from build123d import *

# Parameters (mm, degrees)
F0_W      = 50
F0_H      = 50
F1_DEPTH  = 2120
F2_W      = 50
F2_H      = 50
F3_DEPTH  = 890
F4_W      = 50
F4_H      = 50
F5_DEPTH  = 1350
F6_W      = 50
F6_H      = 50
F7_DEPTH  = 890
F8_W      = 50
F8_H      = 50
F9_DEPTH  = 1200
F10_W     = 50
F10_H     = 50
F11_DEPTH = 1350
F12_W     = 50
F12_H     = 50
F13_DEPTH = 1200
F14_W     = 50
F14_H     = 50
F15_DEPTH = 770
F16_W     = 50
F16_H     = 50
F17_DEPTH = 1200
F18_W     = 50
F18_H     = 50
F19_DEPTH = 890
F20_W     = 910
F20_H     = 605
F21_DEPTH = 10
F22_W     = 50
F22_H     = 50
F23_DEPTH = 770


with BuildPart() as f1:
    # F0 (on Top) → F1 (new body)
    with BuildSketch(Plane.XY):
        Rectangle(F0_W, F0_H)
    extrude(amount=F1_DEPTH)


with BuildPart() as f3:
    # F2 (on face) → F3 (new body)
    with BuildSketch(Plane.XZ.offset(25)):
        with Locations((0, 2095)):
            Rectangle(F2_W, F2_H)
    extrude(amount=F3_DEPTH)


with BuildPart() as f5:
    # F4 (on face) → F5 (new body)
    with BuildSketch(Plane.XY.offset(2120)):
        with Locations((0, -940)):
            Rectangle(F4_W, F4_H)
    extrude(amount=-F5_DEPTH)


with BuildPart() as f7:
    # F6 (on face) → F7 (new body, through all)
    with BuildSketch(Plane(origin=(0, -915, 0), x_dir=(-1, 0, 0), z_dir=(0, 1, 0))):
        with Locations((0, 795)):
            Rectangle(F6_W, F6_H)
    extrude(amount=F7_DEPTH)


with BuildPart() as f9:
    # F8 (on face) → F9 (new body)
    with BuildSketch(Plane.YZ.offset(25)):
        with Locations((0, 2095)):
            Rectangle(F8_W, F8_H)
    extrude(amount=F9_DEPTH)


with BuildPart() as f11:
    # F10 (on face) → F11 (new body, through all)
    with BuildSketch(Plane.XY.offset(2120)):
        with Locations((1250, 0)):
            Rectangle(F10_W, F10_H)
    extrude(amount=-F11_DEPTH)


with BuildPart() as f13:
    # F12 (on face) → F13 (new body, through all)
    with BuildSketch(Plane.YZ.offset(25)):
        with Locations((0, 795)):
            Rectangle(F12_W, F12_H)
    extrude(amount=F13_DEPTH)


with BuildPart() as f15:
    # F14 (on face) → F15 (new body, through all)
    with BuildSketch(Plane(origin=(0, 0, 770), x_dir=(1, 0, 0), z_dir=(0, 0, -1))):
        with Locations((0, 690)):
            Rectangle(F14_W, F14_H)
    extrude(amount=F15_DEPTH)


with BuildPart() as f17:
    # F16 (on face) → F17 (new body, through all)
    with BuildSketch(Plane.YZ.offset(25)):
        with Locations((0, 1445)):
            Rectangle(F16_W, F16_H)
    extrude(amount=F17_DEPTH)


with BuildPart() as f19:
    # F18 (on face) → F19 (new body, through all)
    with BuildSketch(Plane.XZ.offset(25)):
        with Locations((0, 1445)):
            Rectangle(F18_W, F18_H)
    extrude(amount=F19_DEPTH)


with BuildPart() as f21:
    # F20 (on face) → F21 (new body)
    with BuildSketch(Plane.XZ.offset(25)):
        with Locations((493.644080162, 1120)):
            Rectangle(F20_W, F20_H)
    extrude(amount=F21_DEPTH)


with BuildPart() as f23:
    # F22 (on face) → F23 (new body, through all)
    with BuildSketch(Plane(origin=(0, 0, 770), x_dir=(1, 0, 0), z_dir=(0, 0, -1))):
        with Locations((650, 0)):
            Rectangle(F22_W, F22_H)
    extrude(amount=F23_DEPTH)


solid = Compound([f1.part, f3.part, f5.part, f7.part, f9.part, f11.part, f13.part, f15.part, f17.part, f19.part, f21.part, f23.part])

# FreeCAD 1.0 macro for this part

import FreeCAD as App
import Part
import Sketcher
Q = App.Units.Quantity


def add_polygon(sketch, points):
    """Adds a closed chain of lines whose ends are joined by coincident constraints."""
    first, n = sketch.GeometryCount, len(points)
    for a, b in zip(points, points[1:] + points[:1]):
        sketch.addGeometry(Part.LineSegment(App.Vector(*a, 0), App.Vector(*b, 0)), False)
    for i in range(n):
        sketch.addConstraint(Sketcher.Constraint("Coincident", first + i, 2, first + (i + 1) % n, 1))

doc = App.newDocument("Part")
body = doc.addObject("PartDesign::Body", "Body")

# Sketch on XY plane
sketch1 = body.newObject("Sketcher::SketchObject", "Sketch")
sketch1.AttachmentSupport = (doc.getObject("XY_Plane"), [""])
sketch1.MapMode = "FlatFace"
add_polygon(sketch1, [(-25, 25), (-25, -25), (25, -25), (25, 25)])  # lines 0-3
sketch1.addConstraint([
    Sketcher.Constraint("Vertical", 0),
    Sketcher.Constraint("Horizontal", 1),
    Sketcher.Constraint("Vertical", 2),
    Sketcher.Constraint("Horizontal", 3),
    Sketcher.Constraint("Symmetric", 0, 2, 2, 2, -1, 1),
    Sketcher.Constraint("Equal", 3, 0),
    Sketcher.Constraint("DistanceX", 1, 1, 1, 2, Q("50 mm")),
])
pad1 = body.newObject("PartDesign::Pad", "Pad")
pad1.Profile = sketch1
pad1.Length = 2120
body2 = doc.addObject("PartDesign::Body", "Body001")

# Sketch on XZ plane
sketch2 = body2.newObject("Sketcher::SketchObject", "Sketch001")
sketch2.AttachmentSupport = (doc.getObject("XZ_Plane001"), [""])
sketch2.MapMode = "FlatFace"
sketch2.AttachmentOffset = App.Placement(App.Vector(0, 0, 25), App.Rotation())
add_polygon(sketch2, [(-25, 2120), (-25, 2070), (25, 2070), (25, 2120)])  # lines 0-3
sketch2.addConstraint([
    Sketcher.Constraint("Vertical", 0),
    Sketcher.Constraint("Horizontal", 1),
    Sketcher.Constraint("Vertical", 2),
    Sketcher.Constraint("Horizontal", 3),
    Sketcher.Constraint("Equal", 3, 0),
    Sketcher.Constraint("DistanceX", 1, 1, 1, 2, Q("50 mm")),
    Sketcher.Constraint("DistanceX", 0, 2, -1, 1, Q("25 mm")),
    Sketcher.Constraint("DistanceY", -1, 1, 0, 2, Q("2070 mm")),
])
pad2 = body2.newObject("PartDesign::Pad", "Pad001")
pad2.Profile = sketch2
pad2.Length = 890
body3 = doc.addObject("PartDesign::Body", "Body002")

# Sketch on XY plane
sketch3 = body3.newObject("Sketcher::SketchObject", "Sketch002")
sketch3.AttachmentSupport = (doc.getObject("XY_Plane002"), [""])
sketch3.MapMode = "FlatFace"
sketch3.AttachmentOffset = App.Placement(App.Vector(0, 0, 2120), App.Rotation())
add_polygon(sketch3, [(-25, -915), (-25, -965), (25, -965), (25, -915)])  # lines 0-3
sketch3.addConstraint([
    Sketcher.Constraint("Vertical", 0),
    Sketcher.Constraint("Horizontal", 1),
    Sketcher.Constraint("Vertical", 2),
    Sketcher.Constraint("Horizontal", 3),
    Sketcher.Constraint("Equal", 3, 0),
    Sketcher.Constraint("DistanceX", 1, 1, 1, 2, Q("50 mm")),
    Sketcher.Constraint("DistanceX", 0, 2, -1, 1, Q("25 mm")),
    Sketcher.Constraint("DistanceY", 0, 2, -1, 1, Q("965 mm")),
])
pad3 = body3.newObject("PartDesign::Pad", "Pad002")
pad3.Profile = sketch3
pad3.Length = 1350
pad3.Reversed = True
body4 = doc.addObject("PartDesign::Body", "Body003")

# Sketch on XZ plane
sketch4 = body4.newObject("Sketcher::SketchObject", "Sketch003")
sketch4.AttachmentSupport = (doc.getObject("XZ_Plane003"), [""])
sketch4.MapMode = "FlatFace"
sketch4.AttachmentOffset = App.Placement(App.Vector(0, 0, 915), App.Rotation())
add_polygon(sketch4, [(25, 820), (25, 770), (-25, 770), (-25, 820)])  # lines 0-3
sketch4.addConstraint([
    Sketcher.Constraint("Vertical", 0),
    Sketcher.Constraint("Horizontal", 1),
    Sketcher.Constraint("Vertical", 2),
    Sketcher.Constraint("Horizontal", 3),
    Sketcher.Constraint("Equal", 3, 0),
    Sketcher.Constraint("DistanceX", 1, 2, 1, 1, Q("50 mm")),
    Sketcher.Constraint("DistanceX", -1, 1, 0, 2, Q("25 mm")),
    Sketcher.Constraint("DistanceY", -1, 1, 0, 2, Q("770 mm")),
])
pad4 = body4.newObject("PartDesign::Pad", "Pad003")
pad4.Profile = sketch4
pad4.Length = 890
pad4.Reversed = True
body5 = doc.addObject("PartDesign::Body", "Body004")

# Sketch on YZ plane
sketch5 = body5.newObject("Sketcher::SketchObject", "Sketch004")
sketch5.AttachmentSupport = (doc.getObject("YZ_Plane004"), [""])
sketch5.MapMode = "FlatFace"
sketch5.AttachmentOffset = App.Placement(App.Vector(0, 0, 25), App.Rotation())
add_polygon(sketch5, [(-25, 2120), (-25, 2070), (25, 2070), (25, 2120)])  # lines 0-3
sketch5.addConstraint([
    Sketcher.Constraint("Vertical", 0),
    Sketcher.Constraint("Horizontal", 1),
    Sketcher.Constraint("Vertical", 2),
    Sketcher.Constraint("Horizontal", 3),
    Sketcher.Constraint("Equal", 3, 0),
    Sketcher.Constraint("DistanceX", 1, 1, 1, 2, Q("50 mm")),
    Sketcher.Constraint("DistanceX", 0, 2, -1, 1, Q("25 mm")),
    Sketcher.Constraint("DistanceY", -1, 1, 0, 2, Q("2070 mm")),
])
pad5 = body5.newObject("PartDesign::Pad", "Pad004")
pad5.Profile = sketch5
pad5.Length = 1200
body6 = doc.addObject("PartDesign::Body", "Body005")

# Sketch on XY plane
sketch6 = body6.newObject("Sketcher::SketchObject", "Sketch005")
sketch6.AttachmentSupport = (doc.getObject("XY_Plane005"), [""])
sketch6.MapMode = "FlatFace"
sketch6.AttachmentOffset = App.Placement(App.Vector(0, 0, 2120), App.Rotation())
add_polygon(sketch6, [(1225, 25), (1225, -25), (1275, -25), (1275, 25)])  # lines 0-3
sketch6.addConstraint([
    Sketcher.Constraint("Vertical", 0),
    Sketcher.Constraint("Horizontal", 1),
    Sketcher.Constraint("Vertical", 2),
    Sketcher.Constraint("Horizontal", 3),
    Sketcher.Constraint("Equal", 3, 0),
    Sketcher.Constraint("DistanceX", 1, 1, 1, 2, Q("50 mm")),
    Sketcher.Constraint("DistanceX", -1, 1, 0, 2, Q("1225 mm")),
    Sketcher.Constraint("DistanceY", 0, 2, -1, 1, Q("25 mm")),
])
pad6 = body6.newObject("PartDesign::Pad", "Pad005")
pad6.Profile = sketch6
pad6.Length = 1350
pad6.Reversed = True
body7 = doc.addObject("PartDesign::Body", "Body006")

# Sketch on YZ plane
sketch7 = body7.newObject("Sketcher::SketchObject", "Sketch006")
sketch7.AttachmentSupport = (doc.getObject("YZ_Plane006"), [""])
sketch7.MapMode = "FlatFace"
sketch7.AttachmentOffset = App.Placement(App.Vector(0, 0, 25), App.Rotation())
add_polygon(sketch7, [(-25, 820), (-25, 770), (25, 770), (25, 820)])  # lines 0-3
sketch7.addConstraint([
    Sketcher.Constraint("Vertical", 0),
    Sketcher.Constraint("Horizontal", 1),
    Sketcher.Constraint("Vertical", 2),
    Sketcher.Constraint("Horizontal", 3),
    Sketcher.Constraint("Equal", 3, 0),
    Sketcher.Constraint("DistanceX", 1, 1, 1, 2, Q("50 mm")),
    Sketcher.Constraint("DistanceX", 0, 2, -1, 1, Q("25 mm")),
    Sketcher.Constraint("DistanceY", -1, 1, 0, 2, Q("770 mm")),
])
pad7 = body7.newObject("PartDesign::Pad", "Pad006")
pad7.Profile = sketch7
pad7.Length = 1200
body8 = doc.addObject("PartDesign::Body", "Body007")

# Sketch on XY plane
sketch8 = body8.newObject("Sketcher::SketchObject", "Sketch007")
sketch8.AttachmentSupport = (doc.getObject("XY_Plane007"), [""])
sketch8.MapMode = "FlatFace"
sketch8.AttachmentOffset = App.Placement(App.Vector(0, 0, 770), App.Rotation())
add_polygon(sketch8, [(-25, -715), (-25, -665), (25, -665), (25, -715)])  # lines 0-3
sketch8.addConstraint([
    Sketcher.Constraint("Vertical", 0),
    Sketcher.Constraint("Horizontal", 1),
    Sketcher.Constraint("Vertical", 2),
    Sketcher.Constraint("Horizontal", 3),
    Sketcher.Constraint("Equal", 3, 0),
    Sketcher.Constraint("DistanceX", 1, 1, 1, 2, Q("50 mm")),
    Sketcher.Constraint("DistanceX", 0, 2, -1, 1, Q("25 mm")),
    Sketcher.Constraint("DistanceY", 0, 2, -1, 1, Q("665 mm")),
])
pad8 = body8.newObject("PartDesign::Pad", "Pad007")
pad8.Profile = sketch8
pad8.Length = 770
pad8.Reversed = True
body9 = doc.addObject("PartDesign::Body", "Body008")

# Sketch on YZ plane
sketch9 = body9.newObject("Sketcher::SketchObject", "Sketch008")
sketch9.AttachmentSupport = (doc.getObject("YZ_Plane008"), [""])
sketch9.MapMode = "FlatFace"
sketch9.AttachmentOffset = App.Placement(App.Vector(0, 0, 25), App.Rotation())
add_polygon(sketch9, [(-25, 1470), (-25, 1420), (25, 1420), (25, 1470)])  # lines 0-3
sketch9.addConstraint([
    Sketcher.Constraint("Vertical", 0),
    Sketcher.Constraint("Horizontal", 1),
    Sketcher.Constraint("Vertical", 2),
    Sketcher.Constraint("Horizontal", 3),
    Sketcher.Constraint("Equal", 3, 0),
    Sketcher.Constraint("DistanceX", 1, 1, 1, 2, Q("50 mm")),
    Sketcher.Constraint("DistanceX", 0, 2, -1, 1, Q("25 mm")),
    Sketcher.Constraint("DistanceY", -1, 1, 0, 2, Q("1420 mm")),
])
pad9 = body9.newObject("PartDesign::Pad", "Pad008")
pad9.Profile = sketch9
pad9.Length = 1200
body10 = doc.addObject("PartDesign::Body", "Body009")

# Sketch on XZ plane
sketch10 = body10.newObject("Sketcher::SketchObject", "Sketch009")
sketch10.AttachmentSupport = (doc.getObject("XZ_Plane009"), [""])
sketch10.MapMode = "FlatFace"
sketch10.AttachmentOffset = App.Placement(App.Vector(0, 0, 25), App.Rotation())
add_polygon(sketch10, [(-25, 1470), (-25, 1420), (25, 1420), (25, 1470)])  # lines 0-3
sketch10.addConstraint([
    Sketcher.Constraint("Vertical", 0),
    Sketcher.Constraint("Horizontal", 1),
    Sketcher.Constraint("Vertical", 2),
    Sketcher.Constraint("Horizontal", 3),
    Sketcher.Constraint("Equal", 3, 0),
    Sketcher.Constraint("DistanceX", 1, 1, 1, 2, Q("50 mm")),
    Sketcher.Constraint("DistanceX", 0, 2, -1, 1, Q("25 mm")),
    Sketcher.Constraint("DistanceY", -1, 1, 0, 2, Q("1420 mm")),
])
pad10 = body10.newObject("PartDesign::Pad", "Pad009")
pad10.Profile = sketch10
pad10.Length = 890
body11 = doc.addObject("PartDesign::Body", "Body010")

# Sketch on XZ plane
sketch11 = body11.newObject("Sketcher::SketchObject", "Sketch010")
sketch11.AttachmentSupport = (doc.getObject("XZ_Plane010"), [""])
sketch11.MapMode = "FlatFace"
sketch11.AttachmentOffset = App.Placement(App.Vector(0, 0, 25), App.Rotation())
add_polygon(sketch11, [(39, 1422), (39, 818), (949, 818), (949, 1422)])  # lines 0-3
sketch11.addConstraint([
    Sketcher.Constraint("Vertical", 0),
    Sketcher.Constraint("Horizontal", 1),
    Sketcher.Constraint("Vertical", 2),
    Sketcher.Constraint("Horizontal", 3),
    Sketcher.Constraint("DistanceX", 1, 1, 1, 2, Q("910 mm")),
    Sketcher.Constraint("DistanceY", 0, 2, 0, 1, Q("605 mm")),
    Sketcher.Constraint("DistanceY", -1, 1, 0, 2, Q("817.5 mm")),
    Sketcher.Constraint("DistanceX", -1, 1, 0, 2, Q("38.64408 mm")),
])
pad11 = body11.newObject("PartDesign::Pad", "Pad010")
pad11.Profile = sketch11
pad11.Length = 10
body12 = doc.addObject("PartDesign::Body", "Body011")

# Sketch on XY plane
sketch12 = body12.newObject("Sketcher::SketchObject", "Sketch011")
sketch12.AttachmentSupport = (doc.getObject("XY_Plane011"), [""])
sketch12.MapMode = "FlatFace"
sketch12.AttachmentOffset = App.Placement(App.Vector(0, 0, 770), App.Rotation())
add_polygon(sketch12, [(625, -25), (625, 25), (675, 25), (675, -25)])  # lines 0-3
sketch12.addConstraint([
    Sketcher.Constraint("Vertical", 0),
    Sketcher.Constraint("Horizontal", 1),
    Sketcher.Constraint("Vertical", 2),
    Sketcher.Constraint("Horizontal", 3),
    Sketcher.Constraint("Equal", 3, 0),
    Sketcher.Constraint("DistanceX", 1, 1, 1, 2, Q("50 mm")),
    Sketcher.Constraint("DistanceX", -1, 1, 0, 2, Q("625 mm")),
    Sketcher.Constraint("DistanceY", -1, 1, 0, 2, Q("25 mm")),
])
pad12 = body12.newObject("PartDesign::Pad", "Pad011")
pad12.Profile = sketch12
pad12.Length = 770
pad12.Reversed = True

doc.recompute()
